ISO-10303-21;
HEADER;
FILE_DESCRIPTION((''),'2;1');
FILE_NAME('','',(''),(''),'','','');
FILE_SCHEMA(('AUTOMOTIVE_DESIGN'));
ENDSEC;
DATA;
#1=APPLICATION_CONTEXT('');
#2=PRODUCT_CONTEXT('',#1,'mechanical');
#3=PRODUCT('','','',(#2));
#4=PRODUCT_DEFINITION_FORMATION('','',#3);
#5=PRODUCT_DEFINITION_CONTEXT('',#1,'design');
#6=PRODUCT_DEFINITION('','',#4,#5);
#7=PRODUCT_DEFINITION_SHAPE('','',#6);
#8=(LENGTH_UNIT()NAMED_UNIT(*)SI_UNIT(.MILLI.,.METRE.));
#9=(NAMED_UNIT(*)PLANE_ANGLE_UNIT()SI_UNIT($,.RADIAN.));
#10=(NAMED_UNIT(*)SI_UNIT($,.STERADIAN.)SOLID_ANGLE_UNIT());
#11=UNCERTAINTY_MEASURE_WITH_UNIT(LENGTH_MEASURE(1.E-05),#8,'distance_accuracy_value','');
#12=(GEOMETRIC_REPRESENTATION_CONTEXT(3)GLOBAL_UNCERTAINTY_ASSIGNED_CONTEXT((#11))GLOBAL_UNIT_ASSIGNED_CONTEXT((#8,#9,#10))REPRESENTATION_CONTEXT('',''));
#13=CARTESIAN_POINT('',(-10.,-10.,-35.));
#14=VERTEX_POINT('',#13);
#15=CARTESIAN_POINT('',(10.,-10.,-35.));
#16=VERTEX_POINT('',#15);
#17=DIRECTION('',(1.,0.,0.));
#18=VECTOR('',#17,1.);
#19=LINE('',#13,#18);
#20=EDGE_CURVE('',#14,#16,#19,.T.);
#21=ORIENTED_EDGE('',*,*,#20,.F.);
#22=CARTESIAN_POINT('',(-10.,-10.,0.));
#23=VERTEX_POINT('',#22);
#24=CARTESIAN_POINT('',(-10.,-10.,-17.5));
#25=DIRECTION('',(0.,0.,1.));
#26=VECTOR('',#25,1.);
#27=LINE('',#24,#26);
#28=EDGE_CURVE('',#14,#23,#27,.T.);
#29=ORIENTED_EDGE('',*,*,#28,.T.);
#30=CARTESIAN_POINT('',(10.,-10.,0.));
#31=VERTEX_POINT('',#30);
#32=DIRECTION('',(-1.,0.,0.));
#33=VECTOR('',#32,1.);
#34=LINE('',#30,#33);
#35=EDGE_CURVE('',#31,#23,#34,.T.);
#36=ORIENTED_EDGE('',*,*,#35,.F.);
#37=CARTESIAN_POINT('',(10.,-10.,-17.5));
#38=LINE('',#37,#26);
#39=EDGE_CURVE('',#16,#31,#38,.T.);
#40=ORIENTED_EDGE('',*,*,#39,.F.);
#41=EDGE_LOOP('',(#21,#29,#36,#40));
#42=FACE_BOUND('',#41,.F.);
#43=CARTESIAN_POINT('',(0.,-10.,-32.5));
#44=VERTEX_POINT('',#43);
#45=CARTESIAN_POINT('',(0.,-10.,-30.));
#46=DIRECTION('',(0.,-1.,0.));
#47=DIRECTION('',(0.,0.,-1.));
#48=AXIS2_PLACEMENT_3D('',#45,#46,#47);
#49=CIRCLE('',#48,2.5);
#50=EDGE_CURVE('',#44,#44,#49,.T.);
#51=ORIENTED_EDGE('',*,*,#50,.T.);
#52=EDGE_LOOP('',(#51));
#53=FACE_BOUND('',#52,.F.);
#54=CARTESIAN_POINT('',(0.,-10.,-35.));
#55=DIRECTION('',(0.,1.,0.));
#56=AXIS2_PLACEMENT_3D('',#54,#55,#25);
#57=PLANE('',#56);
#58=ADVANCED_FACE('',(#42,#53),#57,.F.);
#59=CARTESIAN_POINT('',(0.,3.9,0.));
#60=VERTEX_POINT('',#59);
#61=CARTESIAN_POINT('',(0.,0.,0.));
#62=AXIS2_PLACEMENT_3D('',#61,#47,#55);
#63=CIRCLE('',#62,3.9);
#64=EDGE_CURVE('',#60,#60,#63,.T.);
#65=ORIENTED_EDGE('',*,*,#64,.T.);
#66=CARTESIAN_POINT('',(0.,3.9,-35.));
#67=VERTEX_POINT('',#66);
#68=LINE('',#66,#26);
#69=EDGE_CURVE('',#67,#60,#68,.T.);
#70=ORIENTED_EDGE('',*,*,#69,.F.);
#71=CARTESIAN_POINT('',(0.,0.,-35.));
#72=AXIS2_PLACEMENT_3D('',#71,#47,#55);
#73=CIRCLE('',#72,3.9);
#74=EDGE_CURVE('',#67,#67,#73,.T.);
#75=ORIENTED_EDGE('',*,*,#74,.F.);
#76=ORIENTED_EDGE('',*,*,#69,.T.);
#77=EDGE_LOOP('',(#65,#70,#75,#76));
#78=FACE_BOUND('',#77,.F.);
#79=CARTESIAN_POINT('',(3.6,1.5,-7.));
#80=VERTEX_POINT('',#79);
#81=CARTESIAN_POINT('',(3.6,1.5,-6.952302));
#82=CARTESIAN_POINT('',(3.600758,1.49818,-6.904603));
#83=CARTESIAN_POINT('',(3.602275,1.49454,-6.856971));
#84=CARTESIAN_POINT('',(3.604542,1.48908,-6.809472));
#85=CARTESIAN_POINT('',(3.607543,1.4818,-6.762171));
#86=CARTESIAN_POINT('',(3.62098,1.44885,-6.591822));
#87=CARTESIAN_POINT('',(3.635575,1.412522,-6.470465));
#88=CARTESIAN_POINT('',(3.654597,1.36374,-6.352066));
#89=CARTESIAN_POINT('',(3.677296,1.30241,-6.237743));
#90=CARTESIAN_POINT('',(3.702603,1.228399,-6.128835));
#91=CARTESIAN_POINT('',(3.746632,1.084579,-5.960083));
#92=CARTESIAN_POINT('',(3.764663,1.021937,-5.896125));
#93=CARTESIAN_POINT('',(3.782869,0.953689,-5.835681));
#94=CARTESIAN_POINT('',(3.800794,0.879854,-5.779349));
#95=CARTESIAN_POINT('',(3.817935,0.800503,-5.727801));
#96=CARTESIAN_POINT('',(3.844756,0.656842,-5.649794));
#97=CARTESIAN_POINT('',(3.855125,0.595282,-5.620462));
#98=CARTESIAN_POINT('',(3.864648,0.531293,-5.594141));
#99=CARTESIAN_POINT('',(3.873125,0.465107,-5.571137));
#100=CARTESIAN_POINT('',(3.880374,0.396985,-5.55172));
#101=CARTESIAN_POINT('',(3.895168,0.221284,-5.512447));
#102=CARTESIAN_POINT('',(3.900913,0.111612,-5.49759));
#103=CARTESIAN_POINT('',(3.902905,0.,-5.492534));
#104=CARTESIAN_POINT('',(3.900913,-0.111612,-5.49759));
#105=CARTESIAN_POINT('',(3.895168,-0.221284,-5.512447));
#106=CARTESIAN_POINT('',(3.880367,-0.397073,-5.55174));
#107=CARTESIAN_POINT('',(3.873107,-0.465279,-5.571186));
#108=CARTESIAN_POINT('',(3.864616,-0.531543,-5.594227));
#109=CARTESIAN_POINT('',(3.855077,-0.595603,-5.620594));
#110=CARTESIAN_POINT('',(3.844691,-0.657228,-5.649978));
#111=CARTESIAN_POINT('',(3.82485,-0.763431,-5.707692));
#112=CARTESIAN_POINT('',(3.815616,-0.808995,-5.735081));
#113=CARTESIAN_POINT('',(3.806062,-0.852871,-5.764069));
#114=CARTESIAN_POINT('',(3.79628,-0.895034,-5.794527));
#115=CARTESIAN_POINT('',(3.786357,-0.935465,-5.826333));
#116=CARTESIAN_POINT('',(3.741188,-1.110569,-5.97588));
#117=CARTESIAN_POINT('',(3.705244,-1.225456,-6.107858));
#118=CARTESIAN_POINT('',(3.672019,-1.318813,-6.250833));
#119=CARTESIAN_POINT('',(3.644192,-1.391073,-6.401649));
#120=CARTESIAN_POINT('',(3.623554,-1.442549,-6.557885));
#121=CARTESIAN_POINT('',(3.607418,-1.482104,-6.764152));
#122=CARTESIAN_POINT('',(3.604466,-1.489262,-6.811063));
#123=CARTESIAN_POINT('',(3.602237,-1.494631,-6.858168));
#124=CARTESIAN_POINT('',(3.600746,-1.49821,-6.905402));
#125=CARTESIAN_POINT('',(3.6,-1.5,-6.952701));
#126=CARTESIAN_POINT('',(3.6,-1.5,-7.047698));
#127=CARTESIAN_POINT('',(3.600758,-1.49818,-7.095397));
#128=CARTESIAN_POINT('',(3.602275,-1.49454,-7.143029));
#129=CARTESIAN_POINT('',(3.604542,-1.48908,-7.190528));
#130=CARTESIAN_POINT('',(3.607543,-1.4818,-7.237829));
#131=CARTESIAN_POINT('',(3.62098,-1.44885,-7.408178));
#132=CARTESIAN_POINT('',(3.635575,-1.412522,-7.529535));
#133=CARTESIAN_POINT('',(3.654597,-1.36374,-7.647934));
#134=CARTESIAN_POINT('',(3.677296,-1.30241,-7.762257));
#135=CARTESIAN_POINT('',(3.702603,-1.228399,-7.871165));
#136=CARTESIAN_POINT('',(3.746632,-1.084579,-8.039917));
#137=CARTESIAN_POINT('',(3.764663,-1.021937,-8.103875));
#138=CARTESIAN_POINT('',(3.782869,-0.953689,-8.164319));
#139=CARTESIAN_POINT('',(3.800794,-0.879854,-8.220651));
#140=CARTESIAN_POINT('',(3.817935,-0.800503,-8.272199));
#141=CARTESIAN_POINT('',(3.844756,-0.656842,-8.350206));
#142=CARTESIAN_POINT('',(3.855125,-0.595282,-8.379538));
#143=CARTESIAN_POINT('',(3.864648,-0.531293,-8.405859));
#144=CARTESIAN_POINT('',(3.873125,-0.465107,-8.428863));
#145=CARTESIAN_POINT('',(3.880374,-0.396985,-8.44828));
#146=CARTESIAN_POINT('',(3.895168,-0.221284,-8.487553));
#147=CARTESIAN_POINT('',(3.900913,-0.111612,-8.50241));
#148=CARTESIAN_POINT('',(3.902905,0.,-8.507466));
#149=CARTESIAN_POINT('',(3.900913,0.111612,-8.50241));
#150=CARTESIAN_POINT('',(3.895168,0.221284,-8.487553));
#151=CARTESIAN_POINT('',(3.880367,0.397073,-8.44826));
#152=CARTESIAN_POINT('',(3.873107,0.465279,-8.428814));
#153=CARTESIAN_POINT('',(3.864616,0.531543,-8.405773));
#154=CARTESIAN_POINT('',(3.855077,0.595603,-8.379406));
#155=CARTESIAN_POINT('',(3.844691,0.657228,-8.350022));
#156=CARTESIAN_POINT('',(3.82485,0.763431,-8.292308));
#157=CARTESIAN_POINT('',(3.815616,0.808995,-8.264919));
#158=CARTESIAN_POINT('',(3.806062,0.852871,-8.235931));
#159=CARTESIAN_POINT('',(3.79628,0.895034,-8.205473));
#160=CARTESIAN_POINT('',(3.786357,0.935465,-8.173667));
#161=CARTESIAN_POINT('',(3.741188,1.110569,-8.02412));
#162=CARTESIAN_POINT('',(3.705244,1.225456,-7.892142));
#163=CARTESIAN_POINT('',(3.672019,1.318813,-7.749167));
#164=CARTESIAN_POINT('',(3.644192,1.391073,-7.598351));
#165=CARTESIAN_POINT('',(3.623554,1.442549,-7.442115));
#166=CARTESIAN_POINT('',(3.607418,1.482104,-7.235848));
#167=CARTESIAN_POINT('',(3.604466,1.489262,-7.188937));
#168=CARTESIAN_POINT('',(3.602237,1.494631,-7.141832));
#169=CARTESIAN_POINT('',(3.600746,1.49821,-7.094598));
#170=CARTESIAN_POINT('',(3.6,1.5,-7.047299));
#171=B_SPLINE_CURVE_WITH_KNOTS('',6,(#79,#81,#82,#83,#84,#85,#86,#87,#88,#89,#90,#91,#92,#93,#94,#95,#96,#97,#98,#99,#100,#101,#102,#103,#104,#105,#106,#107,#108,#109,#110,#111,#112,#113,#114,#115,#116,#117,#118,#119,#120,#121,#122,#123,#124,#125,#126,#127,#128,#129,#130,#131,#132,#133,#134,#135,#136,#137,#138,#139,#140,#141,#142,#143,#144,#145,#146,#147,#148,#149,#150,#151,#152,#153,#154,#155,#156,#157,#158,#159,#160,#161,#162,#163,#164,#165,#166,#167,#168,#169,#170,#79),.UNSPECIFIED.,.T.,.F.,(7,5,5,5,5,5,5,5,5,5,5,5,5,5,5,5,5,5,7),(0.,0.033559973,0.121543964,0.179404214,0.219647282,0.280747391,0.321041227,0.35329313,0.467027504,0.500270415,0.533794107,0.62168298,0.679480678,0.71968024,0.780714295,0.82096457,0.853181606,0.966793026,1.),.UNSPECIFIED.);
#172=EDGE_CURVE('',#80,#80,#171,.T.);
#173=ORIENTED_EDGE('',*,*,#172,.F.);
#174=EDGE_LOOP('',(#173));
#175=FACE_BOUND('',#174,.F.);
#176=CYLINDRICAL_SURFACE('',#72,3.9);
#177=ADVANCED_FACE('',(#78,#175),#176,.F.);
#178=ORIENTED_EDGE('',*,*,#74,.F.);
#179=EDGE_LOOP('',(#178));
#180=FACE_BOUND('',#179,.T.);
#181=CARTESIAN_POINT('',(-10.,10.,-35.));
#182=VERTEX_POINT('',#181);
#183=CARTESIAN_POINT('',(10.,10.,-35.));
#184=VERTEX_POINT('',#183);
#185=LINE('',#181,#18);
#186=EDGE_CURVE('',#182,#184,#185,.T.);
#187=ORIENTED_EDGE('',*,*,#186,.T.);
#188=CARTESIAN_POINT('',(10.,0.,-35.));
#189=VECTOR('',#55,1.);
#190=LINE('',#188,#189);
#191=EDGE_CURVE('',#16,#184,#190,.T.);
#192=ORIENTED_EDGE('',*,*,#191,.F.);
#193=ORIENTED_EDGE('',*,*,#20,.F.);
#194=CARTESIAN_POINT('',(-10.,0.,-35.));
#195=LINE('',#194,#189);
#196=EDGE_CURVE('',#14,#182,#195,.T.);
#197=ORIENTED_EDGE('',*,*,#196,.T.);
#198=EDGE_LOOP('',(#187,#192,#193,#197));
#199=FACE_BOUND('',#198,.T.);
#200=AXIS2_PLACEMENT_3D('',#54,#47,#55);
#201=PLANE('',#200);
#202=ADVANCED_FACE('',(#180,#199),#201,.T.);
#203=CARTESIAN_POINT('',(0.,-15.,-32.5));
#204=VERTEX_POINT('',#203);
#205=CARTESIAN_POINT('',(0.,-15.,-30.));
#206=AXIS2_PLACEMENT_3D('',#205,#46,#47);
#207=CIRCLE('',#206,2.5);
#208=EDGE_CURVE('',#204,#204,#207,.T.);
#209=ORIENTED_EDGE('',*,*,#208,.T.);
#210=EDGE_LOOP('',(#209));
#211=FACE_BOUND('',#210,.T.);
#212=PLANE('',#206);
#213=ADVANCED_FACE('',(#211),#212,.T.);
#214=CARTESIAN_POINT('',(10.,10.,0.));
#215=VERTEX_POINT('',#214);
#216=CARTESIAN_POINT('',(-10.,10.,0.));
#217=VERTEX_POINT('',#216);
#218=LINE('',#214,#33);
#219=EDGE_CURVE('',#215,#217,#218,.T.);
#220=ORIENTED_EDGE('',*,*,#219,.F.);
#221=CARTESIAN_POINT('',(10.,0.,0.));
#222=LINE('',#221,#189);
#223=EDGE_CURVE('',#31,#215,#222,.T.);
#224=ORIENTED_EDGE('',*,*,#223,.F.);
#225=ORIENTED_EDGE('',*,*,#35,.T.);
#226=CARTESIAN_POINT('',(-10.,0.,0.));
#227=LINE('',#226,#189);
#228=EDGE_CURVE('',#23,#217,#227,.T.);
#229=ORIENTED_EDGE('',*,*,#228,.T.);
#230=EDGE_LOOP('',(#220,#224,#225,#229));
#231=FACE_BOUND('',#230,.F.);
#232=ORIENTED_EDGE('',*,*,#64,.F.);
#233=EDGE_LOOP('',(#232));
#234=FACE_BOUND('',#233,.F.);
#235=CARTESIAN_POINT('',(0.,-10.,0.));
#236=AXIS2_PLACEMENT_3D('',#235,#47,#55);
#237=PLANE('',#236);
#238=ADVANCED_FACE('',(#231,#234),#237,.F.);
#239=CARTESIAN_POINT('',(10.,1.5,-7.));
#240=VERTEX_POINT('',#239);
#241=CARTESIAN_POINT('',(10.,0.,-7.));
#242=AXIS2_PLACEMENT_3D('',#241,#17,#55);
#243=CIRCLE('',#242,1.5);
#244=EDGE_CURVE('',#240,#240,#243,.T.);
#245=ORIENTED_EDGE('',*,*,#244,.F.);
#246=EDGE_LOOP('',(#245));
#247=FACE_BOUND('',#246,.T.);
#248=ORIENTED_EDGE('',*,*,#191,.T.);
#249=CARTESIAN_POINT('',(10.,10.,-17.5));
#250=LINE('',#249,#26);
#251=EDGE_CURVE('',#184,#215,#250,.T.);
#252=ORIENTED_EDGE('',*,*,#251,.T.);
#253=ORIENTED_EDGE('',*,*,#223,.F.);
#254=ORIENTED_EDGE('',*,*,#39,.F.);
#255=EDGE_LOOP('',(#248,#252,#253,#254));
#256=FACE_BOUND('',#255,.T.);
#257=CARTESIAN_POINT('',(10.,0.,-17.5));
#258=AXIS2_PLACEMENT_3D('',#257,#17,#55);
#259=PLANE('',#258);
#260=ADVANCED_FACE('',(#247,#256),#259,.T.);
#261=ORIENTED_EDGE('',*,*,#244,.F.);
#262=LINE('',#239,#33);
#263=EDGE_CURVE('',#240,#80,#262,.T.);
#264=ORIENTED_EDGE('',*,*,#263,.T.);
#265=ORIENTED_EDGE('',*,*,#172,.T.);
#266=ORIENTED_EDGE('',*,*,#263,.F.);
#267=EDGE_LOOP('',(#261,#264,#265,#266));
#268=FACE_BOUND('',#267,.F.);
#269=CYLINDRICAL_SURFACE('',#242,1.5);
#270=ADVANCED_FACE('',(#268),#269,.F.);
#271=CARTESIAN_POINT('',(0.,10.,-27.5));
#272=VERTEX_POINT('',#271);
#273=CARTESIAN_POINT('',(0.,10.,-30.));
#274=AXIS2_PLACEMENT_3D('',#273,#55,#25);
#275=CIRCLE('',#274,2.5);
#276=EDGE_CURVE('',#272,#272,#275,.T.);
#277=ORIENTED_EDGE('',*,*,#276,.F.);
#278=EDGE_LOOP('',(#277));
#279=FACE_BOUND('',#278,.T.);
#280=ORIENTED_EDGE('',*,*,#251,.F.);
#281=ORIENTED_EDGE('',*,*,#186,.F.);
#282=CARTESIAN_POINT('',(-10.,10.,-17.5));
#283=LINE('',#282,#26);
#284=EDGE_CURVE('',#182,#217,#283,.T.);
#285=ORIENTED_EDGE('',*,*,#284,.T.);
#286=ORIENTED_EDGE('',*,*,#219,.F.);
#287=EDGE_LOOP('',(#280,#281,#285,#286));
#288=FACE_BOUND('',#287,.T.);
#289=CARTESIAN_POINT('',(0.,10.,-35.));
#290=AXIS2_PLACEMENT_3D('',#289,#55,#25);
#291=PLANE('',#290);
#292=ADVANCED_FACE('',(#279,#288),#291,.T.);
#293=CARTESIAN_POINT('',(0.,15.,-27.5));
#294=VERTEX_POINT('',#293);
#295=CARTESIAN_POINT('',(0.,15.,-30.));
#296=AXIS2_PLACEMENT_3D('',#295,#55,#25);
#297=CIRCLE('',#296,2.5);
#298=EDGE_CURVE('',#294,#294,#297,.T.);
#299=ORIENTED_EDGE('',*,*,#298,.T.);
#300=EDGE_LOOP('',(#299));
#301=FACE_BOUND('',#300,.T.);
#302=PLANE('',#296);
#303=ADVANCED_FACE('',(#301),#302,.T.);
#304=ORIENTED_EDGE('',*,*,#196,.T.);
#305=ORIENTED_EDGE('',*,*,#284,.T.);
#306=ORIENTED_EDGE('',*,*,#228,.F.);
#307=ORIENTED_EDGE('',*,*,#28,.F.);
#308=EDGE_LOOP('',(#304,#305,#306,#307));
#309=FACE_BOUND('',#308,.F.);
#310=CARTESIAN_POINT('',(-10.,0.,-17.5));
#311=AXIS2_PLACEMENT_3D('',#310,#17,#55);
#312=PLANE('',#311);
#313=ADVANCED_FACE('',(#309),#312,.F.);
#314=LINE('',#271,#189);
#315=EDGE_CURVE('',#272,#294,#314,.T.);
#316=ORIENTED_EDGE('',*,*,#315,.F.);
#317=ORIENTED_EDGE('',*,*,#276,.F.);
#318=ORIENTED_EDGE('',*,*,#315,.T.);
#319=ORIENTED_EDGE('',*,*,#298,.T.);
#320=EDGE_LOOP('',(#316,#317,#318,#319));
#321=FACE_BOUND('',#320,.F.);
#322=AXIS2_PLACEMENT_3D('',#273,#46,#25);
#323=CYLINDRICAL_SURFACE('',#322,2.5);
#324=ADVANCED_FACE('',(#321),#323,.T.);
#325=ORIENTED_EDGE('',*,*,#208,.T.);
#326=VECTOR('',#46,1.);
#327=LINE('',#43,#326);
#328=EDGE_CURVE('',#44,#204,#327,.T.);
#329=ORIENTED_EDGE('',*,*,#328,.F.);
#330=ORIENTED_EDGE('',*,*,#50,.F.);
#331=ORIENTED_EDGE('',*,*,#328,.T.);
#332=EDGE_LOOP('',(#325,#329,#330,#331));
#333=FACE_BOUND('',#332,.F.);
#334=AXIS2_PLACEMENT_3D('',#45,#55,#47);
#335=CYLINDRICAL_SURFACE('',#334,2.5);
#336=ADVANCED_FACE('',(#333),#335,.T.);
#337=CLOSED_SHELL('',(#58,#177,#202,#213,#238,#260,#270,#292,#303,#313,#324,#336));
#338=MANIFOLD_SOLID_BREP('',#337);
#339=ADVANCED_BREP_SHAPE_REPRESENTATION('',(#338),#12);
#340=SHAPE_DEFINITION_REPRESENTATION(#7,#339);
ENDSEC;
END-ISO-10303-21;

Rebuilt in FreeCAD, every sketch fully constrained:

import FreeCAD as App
import Part
import Sketcher


def add_polygon(sketch, points):
    """Adds a closed chain of lines whose ends are joined by coincident constraints."""
    first, n = sketch.GeometryCount, len(points)
    for a, b in zip(points, points[1:] + points[:1]):
        sketch.addGeometry(Part.LineSegment(App.Vector(*a, 0), App.Vector(*b, 0)), False)
    for i in range(n):
        sketch.addConstraint(Sketcher.Constraint("Coincident", first + i, 2, first + (i + 1) % n, 1))

doc = App.newDocument("Part")
params = doc.addObject("Spreadsheet::Sheet", "Params")
for row, (alias, value) in enumerate([
    ("sketch1_width", "20 mm"),
    ("sketch1_height", "35 mm"),
    ("pad1_length", "20 mm"),
    ("sketch2_width", "20 mm"),
    ("sketch2_height", "35 mm"),
    ("pad2_length", "10 mm"),
    ("sketch3_diameter", "7.8 mm"),
    ("pocket1_length", "35 mm"),
    ("sketch4_diameter", "3 mm"),
    ("pocket2_length", "10 mm"),
    ("sketch5_diameter", "5 mm"),
    ("pad3_length", "5 mm"),
    ("sketch6_diameter", "5 mm"),
    ("pad4_length", "5 mm"),
], start=1):
    params.set(f"A{row}", alias)
    params.set(f"B{row}", "=" + value)
    params.setAlias(f"B{row}", alias)

body = doc.addObject("PartDesign::Body", "Body")

# Sketch on YZ plane
sketch1 = doc.addObject("Sketcher::SketchObject", "Sketch")
body.addObject(sketch1)
sketch1.AttachmentSupport = (doc.YZ_Plane, [""])
sketch1.MapMode = "FlatFace"
add_polygon(sketch1, [(-10, 0), (-10, -35), (10, -35), (10, 0)])  # lines 0-3
sketch1.addConstraint([
    Sketcher.Constraint("Vertical", 0),
    Sketcher.Constraint("Horizontal", 1),
    Sketcher.Constraint("Vertical", 2),
    Sketcher.Constraint("Horizontal", 3),
    Sketcher.Constraint("Symmetric", 2, 2, 3, 2, -1, 1),
    Sketcher.Constraint("DistanceX", 1, 1, 1, 2, 20.0),
    Sketcher.Constraint("DistanceY", 0, 2, 0, 1, 35.0),
])
sketch1.setExpression("Constraints[9]", "Params.sketch1_width")
sketch1.setExpression("Constraints[10]", "Params.sketch1_height")
pad1 = doc.addObject("PartDesign::Pad", "Pad")
body.addObject(pad1)
pad1.Profile = sketch1
pad1.setExpression("Length", "Params.pad1_length")
pad1.Midplane = True

# Sketch on YZ plane
sketch2 = doc.addObject("Sketcher::SketchObject", "Sketch001")
body.addObject(sketch2)
sketch2.AttachmentSupport = (doc.YZ_Plane, [""])
sketch2.MapMode = "FlatFace"
add_polygon(sketch2, [(-10, 0), (-10, -35), (10, -35), (10, 0)])  # lines 0-3
sketch2.addConstraint([
    Sketcher.Constraint("Vertical", 0),
    Sketcher.Constraint("Horizontal", 1),
    Sketcher.Constraint("Vertical", 2),
    Sketcher.Constraint("Horizontal", 3),
    Sketcher.Constraint("Symmetric", 2, 2, 3, 2, -1, 1),
    Sketcher.Constraint("DistanceX", 1, 1, 1, 2, 20.0),
    Sketcher.Constraint("DistanceY", 0, 2, 0, 1, 35.0),
])
sketch2.setExpression("Constraints[9]", "Params.sketch2_width")
sketch2.setExpression("Constraints[10]", "Params.sketch2_height")
pad2 = doc.addObject("PartDesign::Pad", "Pad001")
body.addObject(pad2)
pad2.Profile = sketch2
pad2.setExpression("Length", "Params.pad2_length")

# Sketch on XY plane
sketch3 = doc.addObject("Sketcher::SketchObject", "Sketch002")
body.addObject(sketch3)
sketch3.AttachmentSupport = (doc.XY_Plane, [""])
sketch3.MapMode = "FlatFace"
sketch3.AttachmentOffset = App.Placement(App.Vector(0, 0, -35), App.Rotation())
sketch3.addGeometry(Part.Circle(App.Vector(0, 0, 0), App.Vector(0, 0, 1), 3.9), False)
sketch3.addConstraint([
    Sketcher.Constraint("Coincident", 0, 3, -1, 1),
    Sketcher.Constraint("Diameter", 0, 7.8),
])
sketch3.setExpression("Constraints[1]", "Params.sketch3_diameter")
pocket1 = doc.addObject("PartDesign::Pocket", "Pocket")
body.addObject(pocket1)
pocket1.Profile = sketch3
pocket1.setExpression("Length", "Params.pocket1_length")
pocket1.Reversed = True

# Sketch on YZ plane
sketch4 = doc.addObject("Sketcher::SketchObject", "Sketch003")
body.addObject(sketch4)
sketch4.AttachmentSupport = (doc.YZ_Plane, [""])
sketch4.MapMode = "FlatFace"
sketch4.AttachmentOffset = App.Placement(App.Vector(0, 0, 10), App.Rotation())
sketch4.addGeometry(Part.Circle(App.Vector(0, -7, 0), App.Vector(0, 0, 1), 1.5), False)
sketch4.addConstraint([
    Sketcher.Constraint("PointOnObject", 0, 3, -2),
    Sketcher.Constraint("Diameter", 0, 3.0),
    Sketcher.Constraint("DistanceY", 0, 3, -1, 1, 7.0),
])
sketch4.setExpression("Constraints[1]", "Params.sketch4_diameter")
pocket2 = doc.addObject("PartDesign::Pocket", "Pocket001")
body.addObject(pocket2)
pocket2.Profile = sketch4
pocket2.setExpression("Length", "Params.pocket2_length")

# Sketch on XZ plane
sketch5 = doc.addObject("Sketcher::SketchObject", "Sketch004")
body.addObject(sketch5)
sketch5.AttachmentSupport = (doc.XZ_Plane, [""])
sketch5.MapMode = "FlatFace"
sketch5.AttachmentOffset = App.Placement(App.Vector(0, 0, -10), App.Rotation())
sketch5.addGeometry(Part.Circle(App.Vector(0, -30, 0), App.Vector(0, 0, 1), 2.5), False)
sketch5.addConstraint([
    Sketcher.Constraint("PointOnObject", 0, 3, -2),
    Sketcher.Constraint("Diameter", 0, 5.0),
    Sketcher.Constraint("DistanceY", 0, 3, -1, 1, 30.0),
])
sketch5.setExpression("Constraints[1]", "Params.sketch5_diameter")
pad3 = doc.addObject("PartDesign::Pad", "Pad002")
body.addObject(pad3)
pad3.Profile = sketch5
pad3.setExpression("Length", "Params.pad3_length")
pad3.Reversed = True

# Sketch on XZ plane
sketch6 = doc.addObject("Sketcher::SketchObject", "Sketch005")
body.addObject(sketch6)
sketch6.AttachmentSupport = (doc.XZ_Plane, [""])
sketch6.MapMode = "FlatFace"
sketch6.AttachmentOffset = App.Placement(App.Vector(0, 0, 10), App.Rotation())
sketch6.addGeometry(Part.Circle(App.Vector(0, -30, 0), App.Vector(0, 0, 1), 2.5), False)
sketch6.addConstraint([
    Sketcher.Constraint("PointOnObject", 0, 3, -2),
    Sketcher.Constraint("Diameter", 0, 5.0),
    Sketcher.Constraint("DistanceY", 0, 3, -1, 1, 30.0),
])
sketch6.setExpression("Constraints[1]", "Params.sketch6_diameter")
pad4 = doc.addObject("PartDesign::Pad", "Pad003")
body.addObject(pad4)
pad4.Profile = sketch6
pad4.setExpression("Length", "Params.pad4_length")

doc.recompute()
